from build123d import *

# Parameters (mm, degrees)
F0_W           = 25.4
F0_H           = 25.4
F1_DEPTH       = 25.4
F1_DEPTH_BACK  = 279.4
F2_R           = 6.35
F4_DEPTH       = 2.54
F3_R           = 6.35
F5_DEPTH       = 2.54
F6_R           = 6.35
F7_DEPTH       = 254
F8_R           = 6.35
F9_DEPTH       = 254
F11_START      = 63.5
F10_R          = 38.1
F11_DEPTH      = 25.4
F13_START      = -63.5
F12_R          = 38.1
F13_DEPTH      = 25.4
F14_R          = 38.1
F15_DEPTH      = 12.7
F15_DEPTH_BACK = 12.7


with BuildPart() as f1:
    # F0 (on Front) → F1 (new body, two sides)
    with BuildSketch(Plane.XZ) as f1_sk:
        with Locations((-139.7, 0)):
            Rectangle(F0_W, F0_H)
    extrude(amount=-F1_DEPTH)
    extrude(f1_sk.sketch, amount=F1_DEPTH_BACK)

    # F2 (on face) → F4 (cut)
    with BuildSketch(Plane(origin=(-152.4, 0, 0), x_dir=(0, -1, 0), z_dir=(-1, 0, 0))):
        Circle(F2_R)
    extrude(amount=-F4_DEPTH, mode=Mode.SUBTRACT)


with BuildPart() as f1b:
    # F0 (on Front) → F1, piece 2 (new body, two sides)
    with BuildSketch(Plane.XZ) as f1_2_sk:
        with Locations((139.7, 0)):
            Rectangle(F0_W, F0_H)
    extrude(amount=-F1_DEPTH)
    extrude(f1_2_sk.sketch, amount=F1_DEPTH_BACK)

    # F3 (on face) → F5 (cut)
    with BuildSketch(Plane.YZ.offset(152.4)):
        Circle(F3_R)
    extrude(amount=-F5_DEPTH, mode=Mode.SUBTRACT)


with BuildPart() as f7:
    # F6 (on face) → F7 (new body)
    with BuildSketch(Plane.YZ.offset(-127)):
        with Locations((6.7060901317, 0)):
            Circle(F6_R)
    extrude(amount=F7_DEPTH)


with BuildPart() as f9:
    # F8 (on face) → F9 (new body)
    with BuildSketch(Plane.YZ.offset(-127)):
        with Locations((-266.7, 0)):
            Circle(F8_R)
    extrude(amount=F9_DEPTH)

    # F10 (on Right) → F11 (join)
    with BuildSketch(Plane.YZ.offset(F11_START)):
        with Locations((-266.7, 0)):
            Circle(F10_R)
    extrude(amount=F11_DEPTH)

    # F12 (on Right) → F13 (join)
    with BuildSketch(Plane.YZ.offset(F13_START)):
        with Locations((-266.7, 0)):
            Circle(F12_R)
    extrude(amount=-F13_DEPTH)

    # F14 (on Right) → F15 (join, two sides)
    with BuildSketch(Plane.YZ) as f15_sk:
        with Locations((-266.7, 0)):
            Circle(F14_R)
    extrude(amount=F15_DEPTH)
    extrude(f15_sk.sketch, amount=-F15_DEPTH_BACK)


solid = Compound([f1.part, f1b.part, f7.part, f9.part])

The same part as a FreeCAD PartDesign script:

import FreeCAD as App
import Part
import Sketcher

V = App.Vector
Q = App.Units.Quantity

doc = App.newDocument("Part")
body = doc.addObject("PartDesign::Body", "Body")

# Sketch on XZ plane
sketch1 = body.newObject("Sketcher::SketchObject", "Sketch")
sketch1.AttachmentSupport = (doc.getObject("XZ_Plane"), [""])
sketch1.MapMode = "FlatFace"
sketch1.addGeometry([
    Part.LineSegment(V(-152, 13, 0), V(-152, -13, 0)),
    Part.LineSegment(V(-152, -13, 0), V(-127, -13, 0)),
    Part.LineSegment(V(-127, -13, 0), V(-127, 13, 0)),
    Part.LineSegment(V(-127, 13, 0), V(-152, 13, 0)),
], False)
sketch1.addConstraint([
    Sketcher.Constraint("Coincident", 0, 2, 1, 1),
    Sketcher.Constraint("Coincident", 1, 2, 2, 1),
    Sketcher.Constraint("Coincident", 2, 2, 3, 1),
    Sketcher.Constraint("Coincident", 3, 2, 0, 1),
    Sketcher.Constraint("Vertical", 0),
    Sketcher.Constraint("Horizontal", 1),
    Sketcher.Constraint("Vertical", 2),
    Sketcher.Constraint("Horizontal", 3),
    Sketcher.Constraint("Equal", 3, 0),
    Sketcher.Constraint("DistanceX", 1, 1, 1, 2, Q("1 in")),
    Sketcher.Constraint("DistanceX", 0, 2, -1, 1, Q("6 in")),
    Sketcher.Constraint("DistanceY", 0, 2, -1, 1, Q("0.5 in")),
])
pad1 = body.newObject("PartDesign::Pad", "Pad")
pad1.Profile = sketch1
pad1.Type = "TwoLengths"
pad1.Length = Q("1 in")
pad1.Length2 = Q("11 in")
pad1.Reversed = True

# Sketch on YZ plane
sketch2 = body.newObject("Sketcher::SketchObject", "Sketch001")
sketch2.AttachmentSupport = (doc.getObject("YZ_Plane"), [""])
sketch2.MapMode = "FlatFace"
sketch2.AttachmentOffset = App.Placement(V(0, 0, -6 * 25.4), App.Rotation())
sketch2.addGeometry(Part.Circle(V(0, 0, 0), V(0, 0, 1), 6), False)
sketch2.addConstraint([
    Sketcher.Constraint("Coincident", 0, 3, -1, 1),
    Sketcher.Constraint("Diameter", 0, Q("0.5 in")),
])
pocket1 = body.newObject("PartDesign::Pocket", "Pocket")
pocket1.Profile = sketch2
pocket1.Length = Q("0.1 in")
pocket1.Reversed = True
body2 = doc.addObject("PartDesign::Body", "Body001")

# Sketch on XZ plane
sketch3 = body2.newObject("Sketcher::SketchObject", "Sketch002")
sketch3.AttachmentSupport = (doc.getObject("XZ_Plane001"), [""])
sketch3.MapMode = "FlatFace"
sketch3.addGeometry([
    Part.LineSegment(V(127, 13, 0), V(127, -13, 0)),
    Part.LineSegment(V(127, -13, 0), V(152, -13, 0)),
    Part.LineSegment(V(152, -13, 0), V(152, 13, 0)),
    Part.LineSegment(V(152, 13, 0), V(127, 13, 0)),
], False)
sketch3.addConstraint([
    Sketcher.Constraint("Coincident", 0, 2, 1, 1),
    Sketcher.Constraint("Coincident", 1, 2, 2, 1),
    Sketcher.Constraint("Coincident", 2, 2, 3, 1),
    Sketcher.Constraint("Coincident", 3, 2, 0, 1),
    Sketcher.Constraint("Vertical", 0),
    Sketcher.Constraint("Horizontal", 1),
    Sketcher.Constraint("Vertical", 2),
    Sketcher.Constraint("Horizontal", 3),
    Sketcher.Constraint("Equal", 3, 0),
    Sketcher.Constraint("DistanceX", 1, 1, 1, 2, Q("1 in")),
    Sketcher.Constraint("DistanceX", -1, 1, 0, 2, Q("5 in")),
    Sketcher.Constraint("DistanceY", 0, 2, -1, 1, Q("0.5 in")),
])
pad2 = body2.newObject("PartDesign::Pad", "Pad001")
pad2.Profile = sketch3
pad2.Type = "TwoLengths"
pad2.Length = Q("1 in")
pad2.Length2 = Q("11 in")
pad2.Reversed = True

# Sketch on YZ plane
sketch4 = body2.newObject("Sketcher::SketchObject", "Sketch003")
sketch4.AttachmentSupport = (doc.getObject("YZ_Plane001"), [""])
sketch4.MapMode = "FlatFace"
sketch4.AttachmentOffset = App.Placement(V(0, 0, 6 * 25.4), App.Rotation())
sketch4.addGeometry(Part.Circle(V(0, 0, 0), V(0, 0, 1), 6), False)
sketch4.addConstraint([
    Sketcher.Constraint("Coincident", 0, 3, -1, 1),
    Sketcher.Constraint("Diameter", 0, Q("0.5 in")),
])
pocket2 = body2.newObject("PartDesign::Pocket", "Pocket001")
pocket2.Profile = sketch4
pocket2.Length = Q("0.1 in")
body3 = doc.addObject("PartDesign::Body", "Body002")

# Sketch on YZ plane
sketch5 = body3.newObject("Sketcher::SketchObject", "Sketch004")
sketch5.AttachmentSupport = (doc.getObject("YZ_Plane002"), [""])
sketch5.MapMode = "FlatFace"
sketch5.AttachmentOffset = App.Placement(V(0, 0, -5 * 25.4), App.Rotation())
sketch5.addGeometry(Part.Circle(V(7, 0, 0), V(0, 0, 1), 6), False)
sketch5.addConstraint([
    Sketcher.Constraint("PointOnObject", 0, 3, -1),
    Sketcher.Constraint("Diameter", 0, Q("0.5 in")),
    Sketcher.Constraint("DistanceX", -1, 1, 0, 3, Q("6.70609 mm")),
])
pad3 = body3.newObject("PartDesign::Pad", "Pad002")
pad3.Profile = sketch5
pad3.Length = Q("10 in")
body4 = doc.addObject("PartDesign::Body", "Body003")

# Sketch on YZ plane
sketch6 = body4.newObject("Sketcher::SketchObject", "Sketch005")
sketch6.AttachmentSupport = (doc.getObject("YZ_Plane003"), [""])
sketch6.MapMode = "FlatFace"
sketch6.AttachmentOffset = App.Placement(V(0, 0, -5 * 25.4), App.Rotation())
sketch6.addGeometry(Part.Circle(V(-267, 0, 0), V(0, 0, 1), 6), False)
sketch6.addConstraint([
    Sketcher.Constraint("PointOnObject", 0, 3, -1),
    Sketcher.Constraint("Diameter", 0, Q("0.5 in")),
    Sketcher.Constraint("DistanceX", 0, 3, -1, 1, Q("10.5 in")),
])
pad4 = body4.newObject("PartDesign::Pad", "Pad003")
pad4.Profile = sketch6
pad4.Length = Q("10 in")

# Sketch on YZ plane
sketch7 = body4.newObject("Sketcher::SketchObject", "Sketch006")
sketch7.AttachmentSupport = (doc.getObject("YZ_Plane003"), [""])
sketch7.MapMode = "FlatFace"
sketch7.AttachmentOffset = App.Placement(V(0, 0, 2.5 * 25.4), App.Rotation())
sketch7.addGeometry(Part.Circle(V(-267, 0, 0), V(0, 0, 1), 38), False)
sketch7.addConstraint([
    Sketcher.Constraint("PointOnObject", 0, 3, -1),
    Sketcher.Constraint("Diameter", 0, Q("3 in")),
    Sketcher.Constraint("DistanceX", 0, 3, -1, 1, Q("10.5 in")),
])
pad5 = body4.newObject("PartDesign::Pad", "Pad004")
pad5.Profile = sketch7
pad5.Length = Q("1 in")

# Sketch on YZ plane
sketch8 = body4.newObject("Sketcher::SketchObject", "Sketch007")
sketch8.AttachmentSupport = (doc.getObject("YZ_Plane003"), [""])
sketch8.MapMode = "FlatFace"
sketch8.AttachmentOffset = App.Placement(V(0, 0, -2.5 * 25.4), App.Rotation())
sketch8.addGeometry(Part.Circle(V(-267, 0, 0), V(0, 0, 1), 38), False)
sketch8.addConstraint([
    Sketcher.Constraint("PointOnObject", 0, 3, -1),
    Sketcher.Constraint("Diameter", 0, Q("3 in")),
    Sketcher.Constraint("DistanceX", 0, 3, -1, 1, Q("10.5 in")),
])
pad6 = body4.newObject("PartDesign::Pad", "Pad005")
pad6.Profile = sketch8
pad6.Length = Q("1 in")
pad6.Reversed = True

# Sketch on YZ plane
sketch9 = body4.newObject("Sketcher::SketchObject", "Sketch008")
sketch9.AttachmentSupport = (doc.getObject("YZ_Plane003"), [""])
sketch9.MapMode = "FlatFace"
sketch9.addGeometry(Part.Circle(V(-267, 0, 0), V(0, 0, 1), 38), False)
sketch9.addConstraint([
    Sketcher.Constraint("PointOnObject", 0, 3, -1),
    Sketcher.Constraint("Diameter", 0, Q("3 in")),
    Sketcher.Constraint("DistanceX", 0, 3, -1, 1, Q("10.5 in")),
])
pad7 = body4.newObject("PartDesign::Pad", "Pad006")
pad7.Profile = sketch9
pad7.Type = "TwoLengths"
pad7.Length = Q("0.5 in")
pad7.Length2 = Q("0.5 in")

doc.recompute()
